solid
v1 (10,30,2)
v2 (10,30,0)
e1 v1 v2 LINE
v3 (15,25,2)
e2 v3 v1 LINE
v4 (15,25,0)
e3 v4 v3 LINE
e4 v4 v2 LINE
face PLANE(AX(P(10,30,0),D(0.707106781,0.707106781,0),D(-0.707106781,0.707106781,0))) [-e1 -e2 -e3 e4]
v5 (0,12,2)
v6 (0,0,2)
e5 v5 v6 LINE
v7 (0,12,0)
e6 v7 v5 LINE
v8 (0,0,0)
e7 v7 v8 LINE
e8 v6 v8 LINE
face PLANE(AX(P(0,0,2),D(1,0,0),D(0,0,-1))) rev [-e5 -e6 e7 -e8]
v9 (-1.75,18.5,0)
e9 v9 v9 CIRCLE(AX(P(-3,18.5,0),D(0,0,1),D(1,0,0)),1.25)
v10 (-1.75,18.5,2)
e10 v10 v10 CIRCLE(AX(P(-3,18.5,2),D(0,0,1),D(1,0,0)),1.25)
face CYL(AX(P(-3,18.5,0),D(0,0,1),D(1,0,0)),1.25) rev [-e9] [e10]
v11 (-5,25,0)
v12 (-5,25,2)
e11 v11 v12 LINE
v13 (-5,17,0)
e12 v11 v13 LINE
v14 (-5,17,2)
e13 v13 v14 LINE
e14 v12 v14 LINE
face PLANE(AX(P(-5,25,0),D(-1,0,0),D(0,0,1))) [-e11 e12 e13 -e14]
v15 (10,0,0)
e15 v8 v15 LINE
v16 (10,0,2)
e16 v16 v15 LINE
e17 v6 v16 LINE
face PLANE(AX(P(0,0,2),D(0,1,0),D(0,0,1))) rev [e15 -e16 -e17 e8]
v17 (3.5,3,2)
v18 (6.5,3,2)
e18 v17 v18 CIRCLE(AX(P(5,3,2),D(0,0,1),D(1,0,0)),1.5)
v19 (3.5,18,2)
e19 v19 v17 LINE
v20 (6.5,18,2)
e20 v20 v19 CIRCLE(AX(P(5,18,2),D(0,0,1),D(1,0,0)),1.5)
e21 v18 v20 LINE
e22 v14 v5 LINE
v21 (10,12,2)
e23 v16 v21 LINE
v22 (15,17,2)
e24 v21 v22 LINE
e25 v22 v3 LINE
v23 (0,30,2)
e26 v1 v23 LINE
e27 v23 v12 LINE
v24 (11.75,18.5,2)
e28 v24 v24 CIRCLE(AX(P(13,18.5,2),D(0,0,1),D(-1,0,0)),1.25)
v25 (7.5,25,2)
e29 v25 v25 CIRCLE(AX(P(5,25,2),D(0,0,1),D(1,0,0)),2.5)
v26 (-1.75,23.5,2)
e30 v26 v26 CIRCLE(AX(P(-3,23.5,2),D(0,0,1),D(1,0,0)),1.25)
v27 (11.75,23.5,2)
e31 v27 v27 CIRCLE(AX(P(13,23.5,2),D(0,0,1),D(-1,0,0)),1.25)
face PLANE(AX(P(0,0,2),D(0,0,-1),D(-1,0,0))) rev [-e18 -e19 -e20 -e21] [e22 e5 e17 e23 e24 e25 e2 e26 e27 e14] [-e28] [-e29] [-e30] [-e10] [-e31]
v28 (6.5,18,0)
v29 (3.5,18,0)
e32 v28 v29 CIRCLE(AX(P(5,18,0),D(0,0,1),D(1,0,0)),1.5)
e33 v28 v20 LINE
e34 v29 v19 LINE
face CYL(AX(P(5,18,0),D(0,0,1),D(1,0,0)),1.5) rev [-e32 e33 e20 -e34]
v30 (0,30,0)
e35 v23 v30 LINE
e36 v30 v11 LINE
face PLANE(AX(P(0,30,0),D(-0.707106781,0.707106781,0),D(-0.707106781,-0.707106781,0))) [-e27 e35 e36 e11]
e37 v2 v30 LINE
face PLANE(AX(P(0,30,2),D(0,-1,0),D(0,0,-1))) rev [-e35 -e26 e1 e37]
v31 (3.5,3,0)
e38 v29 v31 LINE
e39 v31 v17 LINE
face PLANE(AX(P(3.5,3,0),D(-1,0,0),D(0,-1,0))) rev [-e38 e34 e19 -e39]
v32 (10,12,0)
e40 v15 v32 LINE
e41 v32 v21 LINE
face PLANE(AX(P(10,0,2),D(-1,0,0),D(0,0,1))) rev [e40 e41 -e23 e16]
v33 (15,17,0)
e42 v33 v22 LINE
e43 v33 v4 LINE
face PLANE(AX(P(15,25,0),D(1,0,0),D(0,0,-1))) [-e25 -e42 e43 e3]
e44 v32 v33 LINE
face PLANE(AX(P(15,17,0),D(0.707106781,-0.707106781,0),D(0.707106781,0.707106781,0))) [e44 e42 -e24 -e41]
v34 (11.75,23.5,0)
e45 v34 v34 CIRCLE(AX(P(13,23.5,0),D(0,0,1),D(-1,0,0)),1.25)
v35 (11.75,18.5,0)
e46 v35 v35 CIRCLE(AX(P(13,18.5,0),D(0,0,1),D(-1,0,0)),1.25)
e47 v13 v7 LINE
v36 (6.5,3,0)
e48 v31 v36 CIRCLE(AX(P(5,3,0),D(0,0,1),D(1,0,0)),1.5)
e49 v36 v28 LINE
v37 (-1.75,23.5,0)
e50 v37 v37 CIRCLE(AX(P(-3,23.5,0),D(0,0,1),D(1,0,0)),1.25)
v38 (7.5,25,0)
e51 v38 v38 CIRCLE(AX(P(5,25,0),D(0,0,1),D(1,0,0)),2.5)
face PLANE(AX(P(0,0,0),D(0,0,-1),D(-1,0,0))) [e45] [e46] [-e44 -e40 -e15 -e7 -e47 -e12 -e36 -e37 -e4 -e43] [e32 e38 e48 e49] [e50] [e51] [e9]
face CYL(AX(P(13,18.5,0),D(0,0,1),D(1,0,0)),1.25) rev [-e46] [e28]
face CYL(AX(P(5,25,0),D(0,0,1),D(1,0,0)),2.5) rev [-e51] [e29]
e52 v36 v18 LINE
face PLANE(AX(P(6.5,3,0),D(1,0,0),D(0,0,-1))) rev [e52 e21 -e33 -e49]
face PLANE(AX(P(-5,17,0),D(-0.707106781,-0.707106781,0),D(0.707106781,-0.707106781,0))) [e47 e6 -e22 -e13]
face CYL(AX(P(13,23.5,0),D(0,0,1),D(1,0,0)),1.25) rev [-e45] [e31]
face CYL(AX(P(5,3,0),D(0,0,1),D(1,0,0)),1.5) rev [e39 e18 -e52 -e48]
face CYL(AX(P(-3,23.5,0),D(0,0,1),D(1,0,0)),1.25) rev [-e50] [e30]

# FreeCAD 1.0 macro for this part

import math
import FreeCAD as App
import Part
import Sketcher

V = App.Vector
Q = App.Units.Quantity

doc = App.newDocument("Part")
body = doc.addObject("PartDesign::Body", "Body")

# Sketch on XY plane
sketch1 = body.newObject("Sketcher::SketchObject", "Sketch")
sketch1.AttachmentSupport = (doc.getObject("XY_Plane"), [""])
sketch1.MapMode = "FlatFace"
sketch1.addGeometry(Part.LineSegment(V(0, 30, 0), V(0, 0, 0)), False)
sketch1.addGeometry(Part.LineSegment(V(0, 0, 0), V(10, 0, 0)), False)
sketch1.addGeometry(Part.LineSegment(V(10, 0, 0), V(10, 30, 0)), False)
sketch1.addGeometry(Part.LineSegment(V(10, 30, 0), V(0, 30, 0)), False)
sketch1.addConstraint(Sketcher.Constraint("Coincident", 0, 2, 1, 1))
sketch1.addConstraint(Sketcher.Constraint("Coincident", 1, 2, 2, 1))
sketch1.addConstraint(Sketcher.Constraint("Coincident", 2, 2, 3, 1))
sketch1.addConstraint(Sketcher.Constraint("Coincident", 3, 2, 0, 1))
sketch1.addConstraint(Sketcher.Constraint("Vertical", 0))
sketch1.addConstraint(Sketcher.Constraint("Horizontal", 1))
sketch1.addConstraint(Sketcher.Constraint("Vertical", 2))
sketch1.addConstraint(Sketcher.Constraint("Horizontal", 3))
sketch1.addConstraint(Sketcher.Constraint("Coincident", 0, 2, -1, 1))
sketch1.addConstraint(Sketcher.Constraint("DistanceX", 1, 1, 1, 2, Q("10 mm")))
sketch1.addConstraint(Sketcher.Constraint("DistanceY", 0, 2, 0, 1, Q("30 mm")))
pad1 = body.newObject("PartDesign::Pad", "Pad")
pad1.Profile = sketch1
pad1.Length = 2

# Sketch on XY plane
sketch2 = body.newObject("Sketcher::SketchObject", "Sketch001")
sketch2.AttachmentSupport = (doc.getObject("XY_Plane"), [""])
sketch2.MapMode = "FlatFace"
sketch2.AttachmentOffset = App.Placement(V(0, 0, 2), App.Rotation())
sketch2.addGeometry(Part.Circle(V(5, 25, 0), V(0, 0, 1), 2.5), False)
sketch2.addConstraint(Sketcher.Constraint("Diameter", 0, Q("5 mm")))
sketch2.addConstraint(Sketcher.Constraint("DistanceX", -1, 1, 0, 3, Q("5 mm")))
sketch2.addConstraint(Sketcher.Constraint("DistanceY", -1, 1, 0, 3, Q("25 mm")))
pocket1 = body.newObject("PartDesign::Pocket", "Pocket")
pocket1.Profile = sketch2
pocket1.Length = 2

# Sketch on XY plane
sketch3 = body.newObject("Sketcher::SketchObject", "Sketch002")
sketch3.AttachmentSupport = (doc.getObject("XY_Plane"), [""])
sketch3.MapMode = "FlatFace"
sketch3.AttachmentOffset = App.Placement(V(0, 0, 2), App.Rotation())
sketch3.addGeometry(Part.LineSegment(V(3.5, 18, 0), V(3.5, 3, 0)), False)
sketch3.addGeometry(Part.ArcOfCircle(Part.Circle(V(5, 3, 0), V(0, 0, 1), 1.5), math.radians(180), math.radians(360)), False)
sketch3.addGeometry(Part.LineSegment(V(6.5, 3, 0), V(6.5, 18, 0)), False)
sketch3.addGeometry(Part.ArcOfCircle(Part.Circle(V(5, 18, 0), V(0, 0, 1), 1.5), math.radians(0), math.radians(180)), False)
sketch3.addConstraint(Sketcher.Constraint("Tangent", 0, 2, 1, 1))
sketch3.addConstraint(Sketcher.Constraint("Tangent", 1, 2, 2, 1))
sketch3.addConstraint(Sketcher.Constraint("Tangent", 2, 2, 3, 1))
sketch3.addConstraint(Sketcher.Constraint("Tangent", 3, 2, 0, 1))
sketch3.addConstraint(Sketcher.Constraint("Vertical", 0))
sketch3.addConstraint(Sketcher.Constraint("Vertical", 2))
sketch3.addConstraint(Sketcher.Constraint("Radius", 1, Q("1.5 mm")))
sketch3.addConstraint(Sketcher.Constraint("DistanceY", 0, 2, 0, 1, Q("15 mm")))
sketch3.addConstraint(Sketcher.Constraint("DistanceX", -1, 1, 1, 3, Q("5 mm")))
sketch3.addConstraint(Sketcher.Constraint("DistanceY", -1, 1, 1, 3, Q("3 mm")))
pocket2 = body.newObject("PartDesign::Pocket", "Pocket001")
pocket2.Profile = sketch3
pocket2.Length = 2

# Sketch on XY plane
sketch4 = body.newObject("Sketcher::SketchObject", "Sketch003")
sketch4.AttachmentSupport = (doc.getObject("XY_Plane"), [""])
sketch4.MapMode = "FlatFace"
sketch4.AttachmentOffset = App.Placement(V(0, 0, 2), App.Rotation())
sketch4.addGeometry(Part.LineSegment(V(0, 30, 0), V(-5, 25, 0)), False)
sketch4.addGeometry(Part.LineSegment(V(-5, 25, 0), V(-5, 17, 0)), False)
sketch4.addGeometry(Part.LineSegment(V(-5, 17, 0), V(0, 12, 0)), False)
sketch4.addGeometry(Part.LineSegment(V(0, 12, 0), V(0, 30, 0)), False)
sketch4.addGeometry(Part.LineSegment(V(15, 25, 0), V(10, 30, 0)), False)
sketch4.addGeometry(Part.LineSegment(V(10, 30, 0), V(10, 12, 0)), False)
sketch4.addGeometry(Part.LineSegment(V(10, 12, 0), V(15, 17, 0)), False)
sketch4.addGeometry(Part.LineSegment(V(15, 17, 0), V(15, 25, 0)), False)
sketch4.addConstraint(Sketcher.Constraint("Coincident", 0, 2, 1, 1))
sketch4.addConstraint(Sketcher.Constraint("Coincident", 1, 2, 2, 1))
sketch4.addConstraint(Sketcher.Constraint("Coincident", 2, 2, 3, 1))
sketch4.addConstraint(Sketcher.Constraint("Coincident", 3, 2, 0, 1))
sketch4.addConstraint(Sketcher.Constraint("Coincident", 4, 2, 5, 1))
sketch4.addConstraint(Sketcher.Constraint("Coincident", 5, 2, 6, 1))
sketch4.addConstraint(Sketcher.Constraint("Coincident", 6, 2, 7, 1))
sketch4.addConstraint(Sketcher.Constraint("Coincident", 7, 2, 4, 1))
sketch4.addConstraint(Sketcher.Constraint("Vertical", 1))
sketch4.addConstraint(Sketcher.Constraint("Vertical", 3))
sketch4.addConstraint(Sketcher.Constraint("Vertical", 5))
sketch4.addConstraint(Sketcher.Constraint("Vertical", 7))
sketch4.addConstraint(Sketcher.Constraint("PointOnObject", 2, 2, -2))
sketch4.addConstraint(Sketcher.Constraint("Perpendicular", 0, 2))
sketch4.addConstraint(Sketcher.Constraint("Parallel", 2, 4))
sketch4.addConstraint(Sketcher.Constraint("Perpendicular", 4, 6))
sketch4.addConstraint(Sketcher.Constraint("Horizontal", 3, 2, 4, 2))
sketch4.addConstraint(Sketcher.Constraint("Horizontal", 2, 2, 5, 2))
sketch4.addConstraint(Sketcher.Constraint("Horizontal", 1, 2, 6, 2))
sketch4.addConstraint(Sketcher.Constraint("Horizontal", 0, 2, 7, 2))
sketch4.addConstraint(Sketcher.Constraint("DistanceY", 1, 2, 1, 1, Q("8 mm")))
sketch4.addConstraint(Sketcher.Constraint("DistanceY", 3, 1, 3, 2, Q("18 mm")))
sketch4.addConstraint(Sketcher.Constraint("DistanceY", -1, 1, 0, 2, Q("25 mm")))
sketch4.addConstraint(Sketcher.Constraint("DistanceX", -1, 1, 4, 2, Q("10 mm")))
pad2 = body.newObject("PartDesign::Pad", "Pad001")
pad2.Profile = sketch4
pad2.Length = 2
pad2.Reversed = True

# Sketch on XY plane
sketch5 = body.newObject("Sketcher::SketchObject", "Sketch004")
sketch5.AttachmentSupport = (doc.getObject("XY_Plane"), [""])
sketch5.MapMode = "FlatFace"
sketch5.AttachmentOffset = App.Placement(V(0, 0, 2), App.Rotation())
sketch5.addGeometry(Part.Circle(V(-3, 23.5, 0), V(0, 0, 1), 1.25), False)
sketch5.addGeometry(Part.Circle(V(-3, 18.5, 0), V(0, 0, 1), 1.25), False)
sketch5.addGeometry(Part.Circle(V(13, 18.5, 0), V(0, 0, 1), 1.25), False)
sketch5.addGeometry(Part.Circle(V(13, 23.5, 0), V(0, 0, 1), 1.25), False)
sketch5.addConstraint(Sketcher.Constraint("Equal", 0, 1))
sketch5.addConstraint(Sketcher.Constraint("Equal", 1, 2))
sketch5.addConstraint(Sketcher.Constraint("Equal", 2, 3))
sketch5.addConstraint(Sketcher.Constraint("Horizontal", 1, 3, 2, 3))
sketch5.addConstraint(Sketcher.Constraint("Horizontal", 0, 3, 3, 3))
sketch5.addConstraint(Sketcher.Constraint("Vertical", 0, 3, 1, 3))
sketch5.addConstraint(Sketcher.Constraint("Vertical", 2, 3, 3, 3))
sketch5.addConstraint(Sketcher.Constraint("Diameter", 0, Q("2.5 mm")))
sketch5.addConstraint(Sketcher.Constraint("DistanceX", 0, 3, -1, 1, Q("3 mm")))
sketch5.addConstraint(Sketcher.Constraint("DistanceX", -1, 1, 2, 3, Q("13 mm")))
sketch5.addConstraint(Sketcher.Constraint("DistanceY", 1, 3, 0, 3, Q("5 mm")))
sketch5.addConstraint(Sketcher.Constraint("DistanceY", -1, 1, 0, 3, Q("23.5 mm")))
pocket3 = body.newObject("PartDesign::Pocket", "Pocket002")
pocket3.Profile = sketch5
pocket3.Length = 2

doc.recompute()
